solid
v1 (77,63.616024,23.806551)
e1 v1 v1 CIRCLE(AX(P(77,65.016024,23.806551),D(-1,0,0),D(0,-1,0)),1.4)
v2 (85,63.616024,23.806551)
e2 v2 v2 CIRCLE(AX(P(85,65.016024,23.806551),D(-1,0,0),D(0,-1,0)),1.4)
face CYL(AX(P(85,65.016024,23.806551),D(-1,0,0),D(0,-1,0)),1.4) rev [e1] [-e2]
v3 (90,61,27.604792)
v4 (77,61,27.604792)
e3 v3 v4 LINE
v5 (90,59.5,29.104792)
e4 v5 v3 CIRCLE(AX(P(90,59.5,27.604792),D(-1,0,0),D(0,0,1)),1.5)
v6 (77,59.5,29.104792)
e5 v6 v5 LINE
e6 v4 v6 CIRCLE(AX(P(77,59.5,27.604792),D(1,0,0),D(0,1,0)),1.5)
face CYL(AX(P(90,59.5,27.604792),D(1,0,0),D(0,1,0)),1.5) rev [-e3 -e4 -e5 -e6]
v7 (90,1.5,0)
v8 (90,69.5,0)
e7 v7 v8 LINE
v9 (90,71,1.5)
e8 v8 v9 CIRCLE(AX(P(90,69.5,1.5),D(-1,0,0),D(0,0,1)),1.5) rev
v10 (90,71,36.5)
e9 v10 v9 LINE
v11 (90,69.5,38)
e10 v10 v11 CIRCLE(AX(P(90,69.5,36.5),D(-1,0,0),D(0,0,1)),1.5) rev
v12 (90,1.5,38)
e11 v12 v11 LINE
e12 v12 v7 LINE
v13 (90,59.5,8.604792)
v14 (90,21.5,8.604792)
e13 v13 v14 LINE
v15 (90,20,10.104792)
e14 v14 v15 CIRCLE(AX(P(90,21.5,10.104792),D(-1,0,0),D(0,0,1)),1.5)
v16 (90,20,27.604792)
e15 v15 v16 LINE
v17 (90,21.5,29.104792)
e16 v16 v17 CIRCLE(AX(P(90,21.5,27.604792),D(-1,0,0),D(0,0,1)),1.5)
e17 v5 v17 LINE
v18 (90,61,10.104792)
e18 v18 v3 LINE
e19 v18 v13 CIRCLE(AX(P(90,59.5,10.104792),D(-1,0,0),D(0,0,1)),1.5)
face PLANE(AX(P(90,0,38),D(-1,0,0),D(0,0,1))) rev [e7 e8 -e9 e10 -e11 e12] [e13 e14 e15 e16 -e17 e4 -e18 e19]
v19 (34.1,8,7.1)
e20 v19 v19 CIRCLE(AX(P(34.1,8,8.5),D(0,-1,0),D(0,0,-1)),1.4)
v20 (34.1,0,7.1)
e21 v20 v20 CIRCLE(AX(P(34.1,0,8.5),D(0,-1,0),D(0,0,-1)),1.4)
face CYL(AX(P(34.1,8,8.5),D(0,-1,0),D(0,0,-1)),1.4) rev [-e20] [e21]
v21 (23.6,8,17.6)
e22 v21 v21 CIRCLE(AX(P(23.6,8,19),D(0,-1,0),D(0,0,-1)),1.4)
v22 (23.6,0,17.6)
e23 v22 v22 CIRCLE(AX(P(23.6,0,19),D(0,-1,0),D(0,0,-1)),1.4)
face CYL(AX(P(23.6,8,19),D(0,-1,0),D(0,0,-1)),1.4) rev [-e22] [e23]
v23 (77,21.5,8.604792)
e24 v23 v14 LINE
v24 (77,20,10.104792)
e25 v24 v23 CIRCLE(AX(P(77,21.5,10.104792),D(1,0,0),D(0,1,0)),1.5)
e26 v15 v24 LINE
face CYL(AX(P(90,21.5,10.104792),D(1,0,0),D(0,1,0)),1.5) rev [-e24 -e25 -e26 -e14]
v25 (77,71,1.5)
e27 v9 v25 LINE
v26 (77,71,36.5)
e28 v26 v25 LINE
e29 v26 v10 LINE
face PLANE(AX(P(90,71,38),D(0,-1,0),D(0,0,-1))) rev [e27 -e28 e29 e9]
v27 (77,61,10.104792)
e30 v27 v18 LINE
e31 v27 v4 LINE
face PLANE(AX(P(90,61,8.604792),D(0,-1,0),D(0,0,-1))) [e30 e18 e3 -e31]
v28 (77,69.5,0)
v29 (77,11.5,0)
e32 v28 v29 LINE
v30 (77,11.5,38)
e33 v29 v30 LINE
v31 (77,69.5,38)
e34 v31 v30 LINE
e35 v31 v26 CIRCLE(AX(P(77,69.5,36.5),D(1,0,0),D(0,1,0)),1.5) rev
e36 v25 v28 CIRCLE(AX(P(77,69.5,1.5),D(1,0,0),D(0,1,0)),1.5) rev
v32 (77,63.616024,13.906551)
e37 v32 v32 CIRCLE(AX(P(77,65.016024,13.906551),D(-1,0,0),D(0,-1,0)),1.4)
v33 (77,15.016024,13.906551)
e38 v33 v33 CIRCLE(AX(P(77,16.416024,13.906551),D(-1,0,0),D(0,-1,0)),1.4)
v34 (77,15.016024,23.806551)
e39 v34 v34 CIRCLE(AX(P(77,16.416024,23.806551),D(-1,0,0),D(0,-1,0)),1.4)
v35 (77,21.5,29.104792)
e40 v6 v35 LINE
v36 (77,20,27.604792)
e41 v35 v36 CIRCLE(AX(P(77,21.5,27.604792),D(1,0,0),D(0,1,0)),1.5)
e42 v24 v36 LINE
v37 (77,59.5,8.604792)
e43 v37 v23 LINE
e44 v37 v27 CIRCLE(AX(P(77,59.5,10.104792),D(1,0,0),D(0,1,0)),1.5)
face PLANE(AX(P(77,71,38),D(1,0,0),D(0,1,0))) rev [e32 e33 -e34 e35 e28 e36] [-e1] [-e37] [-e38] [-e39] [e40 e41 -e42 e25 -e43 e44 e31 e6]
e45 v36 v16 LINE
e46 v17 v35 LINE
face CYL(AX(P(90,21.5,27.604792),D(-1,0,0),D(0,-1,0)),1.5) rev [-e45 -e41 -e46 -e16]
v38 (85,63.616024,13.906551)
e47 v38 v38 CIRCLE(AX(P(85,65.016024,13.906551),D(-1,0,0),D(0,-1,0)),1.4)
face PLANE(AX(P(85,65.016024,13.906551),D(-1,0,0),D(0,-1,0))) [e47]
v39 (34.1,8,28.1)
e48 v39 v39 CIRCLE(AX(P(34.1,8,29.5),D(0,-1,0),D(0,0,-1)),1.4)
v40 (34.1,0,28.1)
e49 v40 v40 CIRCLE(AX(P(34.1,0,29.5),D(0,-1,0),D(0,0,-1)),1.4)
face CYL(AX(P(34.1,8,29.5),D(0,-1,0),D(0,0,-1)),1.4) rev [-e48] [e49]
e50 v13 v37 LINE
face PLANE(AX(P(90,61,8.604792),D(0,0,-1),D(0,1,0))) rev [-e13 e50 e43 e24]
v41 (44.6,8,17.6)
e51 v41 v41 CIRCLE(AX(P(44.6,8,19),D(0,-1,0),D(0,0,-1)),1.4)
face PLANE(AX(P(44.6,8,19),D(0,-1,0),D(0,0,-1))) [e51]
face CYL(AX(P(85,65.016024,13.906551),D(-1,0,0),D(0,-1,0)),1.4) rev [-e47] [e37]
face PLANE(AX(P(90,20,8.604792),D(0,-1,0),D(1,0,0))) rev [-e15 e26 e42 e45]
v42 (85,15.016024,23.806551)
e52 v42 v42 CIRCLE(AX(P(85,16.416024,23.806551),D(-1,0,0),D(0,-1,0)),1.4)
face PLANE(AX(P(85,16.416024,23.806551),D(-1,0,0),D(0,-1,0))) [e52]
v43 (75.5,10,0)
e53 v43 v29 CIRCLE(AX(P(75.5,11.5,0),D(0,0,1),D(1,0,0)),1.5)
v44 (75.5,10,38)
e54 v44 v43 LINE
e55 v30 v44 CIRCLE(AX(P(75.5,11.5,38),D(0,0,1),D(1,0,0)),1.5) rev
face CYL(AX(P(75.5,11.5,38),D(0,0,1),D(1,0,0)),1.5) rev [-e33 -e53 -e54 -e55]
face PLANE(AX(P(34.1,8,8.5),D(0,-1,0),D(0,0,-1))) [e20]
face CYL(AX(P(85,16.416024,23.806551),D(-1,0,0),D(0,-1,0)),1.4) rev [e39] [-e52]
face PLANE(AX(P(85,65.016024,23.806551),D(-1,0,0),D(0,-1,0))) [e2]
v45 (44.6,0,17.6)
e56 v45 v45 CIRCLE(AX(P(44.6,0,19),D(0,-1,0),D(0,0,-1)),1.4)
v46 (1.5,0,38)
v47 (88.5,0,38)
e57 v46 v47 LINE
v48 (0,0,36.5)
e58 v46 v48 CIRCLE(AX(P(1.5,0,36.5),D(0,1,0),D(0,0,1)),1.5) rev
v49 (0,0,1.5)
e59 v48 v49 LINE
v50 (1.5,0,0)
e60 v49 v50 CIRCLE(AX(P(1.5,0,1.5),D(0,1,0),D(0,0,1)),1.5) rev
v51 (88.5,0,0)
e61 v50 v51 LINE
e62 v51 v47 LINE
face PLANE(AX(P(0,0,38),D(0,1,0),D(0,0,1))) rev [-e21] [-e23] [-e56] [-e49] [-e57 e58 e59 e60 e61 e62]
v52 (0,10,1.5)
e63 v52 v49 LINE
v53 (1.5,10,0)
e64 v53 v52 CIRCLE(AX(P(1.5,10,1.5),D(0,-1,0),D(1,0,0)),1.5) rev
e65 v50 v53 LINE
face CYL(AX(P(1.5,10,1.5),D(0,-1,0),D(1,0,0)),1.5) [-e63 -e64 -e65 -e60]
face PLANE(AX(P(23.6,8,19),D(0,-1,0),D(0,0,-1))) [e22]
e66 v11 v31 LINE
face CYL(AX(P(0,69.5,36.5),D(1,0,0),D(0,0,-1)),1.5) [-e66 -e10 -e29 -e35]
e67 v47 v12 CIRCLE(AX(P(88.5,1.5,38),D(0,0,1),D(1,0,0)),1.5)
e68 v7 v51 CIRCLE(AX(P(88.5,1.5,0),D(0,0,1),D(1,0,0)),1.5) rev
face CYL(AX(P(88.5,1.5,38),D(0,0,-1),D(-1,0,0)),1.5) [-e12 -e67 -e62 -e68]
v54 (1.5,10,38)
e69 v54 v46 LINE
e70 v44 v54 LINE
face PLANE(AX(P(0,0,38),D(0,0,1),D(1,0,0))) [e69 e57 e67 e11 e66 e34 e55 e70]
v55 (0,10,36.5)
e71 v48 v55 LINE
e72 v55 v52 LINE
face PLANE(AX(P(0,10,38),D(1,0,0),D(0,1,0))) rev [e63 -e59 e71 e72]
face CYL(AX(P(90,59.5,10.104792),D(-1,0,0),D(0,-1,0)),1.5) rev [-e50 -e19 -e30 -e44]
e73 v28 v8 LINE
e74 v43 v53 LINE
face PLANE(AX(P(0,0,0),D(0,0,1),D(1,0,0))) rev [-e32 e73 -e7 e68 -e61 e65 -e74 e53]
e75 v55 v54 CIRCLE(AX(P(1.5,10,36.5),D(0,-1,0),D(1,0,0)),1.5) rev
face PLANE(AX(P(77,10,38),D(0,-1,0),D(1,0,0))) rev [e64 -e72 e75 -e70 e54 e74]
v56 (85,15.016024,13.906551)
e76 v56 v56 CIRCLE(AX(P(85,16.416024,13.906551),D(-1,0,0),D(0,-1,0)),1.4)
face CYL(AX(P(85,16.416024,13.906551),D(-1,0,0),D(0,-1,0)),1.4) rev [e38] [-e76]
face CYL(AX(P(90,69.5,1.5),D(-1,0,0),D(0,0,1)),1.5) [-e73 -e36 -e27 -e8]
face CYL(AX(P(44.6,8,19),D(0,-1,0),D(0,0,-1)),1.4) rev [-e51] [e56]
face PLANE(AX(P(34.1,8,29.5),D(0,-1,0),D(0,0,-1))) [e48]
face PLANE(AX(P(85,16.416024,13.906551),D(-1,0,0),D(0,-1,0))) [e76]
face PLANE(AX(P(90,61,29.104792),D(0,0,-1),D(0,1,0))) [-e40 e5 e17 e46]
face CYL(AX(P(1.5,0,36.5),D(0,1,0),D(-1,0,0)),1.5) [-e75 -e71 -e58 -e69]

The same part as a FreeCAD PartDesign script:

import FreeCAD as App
import Part
import Sketcher
from FreeCAD import Vector


def edges_at(feature, points):
    """Names of the edges that pass closest to the given points."""
    edges = feature.Shape.Edges
    near = lambda p: min(range(len(edges)), key=lambda i: edges[i].distToShape(Part.Vertex(*p))[0])
    return sorted({f"Edge{near(p) + 1}" for p in points})


def add_polygon(sketch, points):
    """Adds a closed chain of lines whose ends are joined by coincident constraints."""
    first, n = sketch.GeometryCount, len(points)
    for a, b in zip(points, points[1:] + points[:1]):
        sketch.addGeometry(Part.LineSegment(App.Vector(*a, 0), App.Vector(*b, 0)), False)
    for i in range(n):
        sketch.addConstraint(Sketcher.Constraint("Coincident", first + i, 2, first + (i + 1) % n, 1))

doc = App.newDocument("Part")
body = doc.addObject("PartDesign::Body", "Body")

# Sketch on XY plane
sketch1 = body.newObject("Sketcher::SketchObject", "Sketch")
sketch1.AttachmentSupport = (doc.getObject("XY_Plane"), [""])
sketch1.MapMode = "FlatFace"
add_polygon(sketch1, [(0, 0), (90, 0), (90, 71), (77, 71), (77, 10), (0, 10)])  # lines 0-5
sketch1.addConstraint([
    Sketcher.Constraint("Horizontal", 0),
    Sketcher.Constraint("Vertical", 1),
    Sketcher.Constraint("Horizontal", 2),
    Sketcher.Constraint("Vertical", 3),
    Sketcher.Constraint("Horizontal", 4),
    Sketcher.Constraint("Vertical", 5),
    Sketcher.Constraint("Coincident", 5, 2, -1, 1),
    Sketcher.Constraint("DistanceX", 0, 1, 0, 2, 90.0),
    Sketcher.Constraint("DistanceX", 2, 2, 2, 1, 13.0),
    Sketcher.Constraint("DistanceY", 1, 1, 1, 2, 71.0),
    Sketcher.Constraint("DistanceY", 3, 2, 3, 1, 61.0),
])
pad1 = body.newObject("PartDesign::Pad", "Pad")
pad1.Profile = sketch1
pad1.Length = 38

# Sketch on XZ plane
sketch2 = body.newObject("Sketcher::SketchObject", "Sketch001")
sketch2.AttachmentSupport = (doc.getObject("XZ_Plane"), [""])
sketch2.MapMode = "FlatFace"
sketch2.addGeometry([
    Part.Circle(Vector(23.6, 19, 0), Vector(0, 0, 1), 1.4),
    Part.Circle(Vector(34.1, 29.5, 0), Vector(0, 0, 1), 1.4),
    Part.Circle(Vector(44.6, 19, 0), Vector(0, 0, 1), 1.4),
    Part.Circle(Vector(34.1, 8.5, 0), Vector(0, 0, 1), 1.4),
], False)
sketch2.addConstraint([
    Sketcher.Constraint("Equal", 0, 1),
    Sketcher.Constraint("Equal", 1, 2),
    Sketcher.Constraint("Equal", 2, 3),
    Sketcher.Constraint("Horizontal", 0, 3, 2, 3),
    Sketcher.Constraint("Vertical", 1, 3, 3, 3),
    Sketcher.Constraint("Diameter", 0, 2.8),
    Sketcher.Constraint("DistanceY", -1, 1, 0, 3, 19.0),
    Sketcher.Constraint("DistanceX", 0, 3, 2, 3, 21.0),
    Sketcher.Constraint("DistanceY", 3, 3, 1, 3, 21.0),
    Sketcher.Constraint("DistanceX", -1, 1, 0, 3, 23.6),
    Sketcher.Constraint("DistanceX", -1, 1, 1, 3, 34.1),
    Sketcher.Constraint("DistanceY", -1, 1, 1, 3, 29.5),
])
pocket1 = body.newObject("PartDesign::Pocket", "Pocket")
pocket1.Profile = sketch2
pocket1.Length = 8

# Sketch on YZ plane
sketch3 = body.newObject("Sketcher::SketchObject", "Sketch002")
sketch3.AttachmentSupport = (doc.getObject("YZ_Plane"), [""])
sketch3.MapMode = "FlatFace"
sketch3.AttachmentOffset = App.Placement(Vector(0, 0, 77), App.Rotation())
add_polygon(sketch3, [(61, 8.604792), (20, 8.604792), (20, 29.104792), (61, 29.104792)])  # lines 0-3
sketch3.addConstraint([
    Sketcher.Constraint("Horizontal", 0),
    Sketcher.Constraint("Vertical", 1),
    Sketcher.Constraint("Horizontal", 2),
    Sketcher.Constraint("Vertical", 3),
    Sketcher.Constraint("DistanceX", 0, 2, 0, 1, 41.0),
    Sketcher.Constraint("DistanceY", 1, 1, 1, 2, 20.5),
    Sketcher.Constraint("DistanceX", -1, 1, 0, 2, 20.0),
    Sketcher.Constraint("DistanceY", -1, 1, 0, 2, 8.604792),
])
pocket2 = body.newObject("PartDesign::Pocket", "Pocket001")
pocket2.Profile = sketch3
pocket2.Type = "ThroughAll"
pocket2.Reversed = True

# Sketch on YZ plane
sketch4 = body.newObject("Sketcher::SketchObject", "Sketch003")
sketch4.AttachmentSupport = (doc.getObject("YZ_Plane"), [""])
sketch4.MapMode = "FlatFace"
sketch4.AttachmentOffset = App.Placement(Vector(0, 0, 77), App.Rotation())
sketch4.addGeometry([
    Part.Circle(Vector(65.016024, 13.906551, 0), Vector(0, 0, 1), 1.4),
    Part.Circle(Vector(65.016024, 23.806551, 0), Vector(0, 0, 1), 1.4),
    Part.Circle(Vector(16.416024, 13.906551, 0), Vector(0, 0, 1), 1.4),
    Part.Circle(Vector(16.416024, 23.806551, 0), Vector(0, 0, 1), 1.4),
], False)
sketch4.addConstraint([
    Sketcher.Constraint("Equal", 0, 1),
    Sketcher.Constraint("Equal", 1, 2),
    Sketcher.Constraint("Equal", 2, 3),
    Sketcher.Constraint("Horizontal", 0, 3, 2, 3),
    Sketcher.Constraint("Horizontal", 1, 3, 3, 3),
    Sketcher.Constraint("Vertical", 0, 3, 1, 3),
    Sketcher.Constraint("Vertical", 2, 3, 3, 3),
    Sketcher.Constraint("Diameter", 0, 2.8),
    Sketcher.Constraint("DistanceY", 0, 3, 1, 3, 9.9),
    Sketcher.Constraint("DistanceX", 2, 3, 0, 3, 48.6),
    Sketcher.Constraint("DistanceY", -1, 1, 0, 3, 13.906551),
    Sketcher.Constraint("DistanceX", -1, 1, 0, 3, 65.016024),
])
pocket3 = body.newObject("PartDesign::Pocket", "Pocket002")
pocket3.Profile = sketch4
pocket3.Length = 8
pocket3.Reversed = True
doc.recompute()

fillet = body.newObject("PartDesign::Fillet", "Fillet")
fillet.Base = (pocket3, edges_at(pocket3, [
    (83.5, 20, 8.605),
    (83.5, 61, 8.605),
    (83.5, 61, 29.105),
    (83.5, 20, 29.105),
]))
fillet.Radius = 1.5
doc.recompute()

fillet2 = body.newObject("PartDesign::Fillet", "Fillet001")
fillet2.Base = (fillet, edges_at(fillet, [
    (77, 10, 19),
    (90, 0, 19),
    (83.5, 71, 38),
    (0, 5, 38),
    (83.5, 71, 0),
    (0, 5, 0),
]))
fillet2.Radius = 1.5

doc.recompute()
